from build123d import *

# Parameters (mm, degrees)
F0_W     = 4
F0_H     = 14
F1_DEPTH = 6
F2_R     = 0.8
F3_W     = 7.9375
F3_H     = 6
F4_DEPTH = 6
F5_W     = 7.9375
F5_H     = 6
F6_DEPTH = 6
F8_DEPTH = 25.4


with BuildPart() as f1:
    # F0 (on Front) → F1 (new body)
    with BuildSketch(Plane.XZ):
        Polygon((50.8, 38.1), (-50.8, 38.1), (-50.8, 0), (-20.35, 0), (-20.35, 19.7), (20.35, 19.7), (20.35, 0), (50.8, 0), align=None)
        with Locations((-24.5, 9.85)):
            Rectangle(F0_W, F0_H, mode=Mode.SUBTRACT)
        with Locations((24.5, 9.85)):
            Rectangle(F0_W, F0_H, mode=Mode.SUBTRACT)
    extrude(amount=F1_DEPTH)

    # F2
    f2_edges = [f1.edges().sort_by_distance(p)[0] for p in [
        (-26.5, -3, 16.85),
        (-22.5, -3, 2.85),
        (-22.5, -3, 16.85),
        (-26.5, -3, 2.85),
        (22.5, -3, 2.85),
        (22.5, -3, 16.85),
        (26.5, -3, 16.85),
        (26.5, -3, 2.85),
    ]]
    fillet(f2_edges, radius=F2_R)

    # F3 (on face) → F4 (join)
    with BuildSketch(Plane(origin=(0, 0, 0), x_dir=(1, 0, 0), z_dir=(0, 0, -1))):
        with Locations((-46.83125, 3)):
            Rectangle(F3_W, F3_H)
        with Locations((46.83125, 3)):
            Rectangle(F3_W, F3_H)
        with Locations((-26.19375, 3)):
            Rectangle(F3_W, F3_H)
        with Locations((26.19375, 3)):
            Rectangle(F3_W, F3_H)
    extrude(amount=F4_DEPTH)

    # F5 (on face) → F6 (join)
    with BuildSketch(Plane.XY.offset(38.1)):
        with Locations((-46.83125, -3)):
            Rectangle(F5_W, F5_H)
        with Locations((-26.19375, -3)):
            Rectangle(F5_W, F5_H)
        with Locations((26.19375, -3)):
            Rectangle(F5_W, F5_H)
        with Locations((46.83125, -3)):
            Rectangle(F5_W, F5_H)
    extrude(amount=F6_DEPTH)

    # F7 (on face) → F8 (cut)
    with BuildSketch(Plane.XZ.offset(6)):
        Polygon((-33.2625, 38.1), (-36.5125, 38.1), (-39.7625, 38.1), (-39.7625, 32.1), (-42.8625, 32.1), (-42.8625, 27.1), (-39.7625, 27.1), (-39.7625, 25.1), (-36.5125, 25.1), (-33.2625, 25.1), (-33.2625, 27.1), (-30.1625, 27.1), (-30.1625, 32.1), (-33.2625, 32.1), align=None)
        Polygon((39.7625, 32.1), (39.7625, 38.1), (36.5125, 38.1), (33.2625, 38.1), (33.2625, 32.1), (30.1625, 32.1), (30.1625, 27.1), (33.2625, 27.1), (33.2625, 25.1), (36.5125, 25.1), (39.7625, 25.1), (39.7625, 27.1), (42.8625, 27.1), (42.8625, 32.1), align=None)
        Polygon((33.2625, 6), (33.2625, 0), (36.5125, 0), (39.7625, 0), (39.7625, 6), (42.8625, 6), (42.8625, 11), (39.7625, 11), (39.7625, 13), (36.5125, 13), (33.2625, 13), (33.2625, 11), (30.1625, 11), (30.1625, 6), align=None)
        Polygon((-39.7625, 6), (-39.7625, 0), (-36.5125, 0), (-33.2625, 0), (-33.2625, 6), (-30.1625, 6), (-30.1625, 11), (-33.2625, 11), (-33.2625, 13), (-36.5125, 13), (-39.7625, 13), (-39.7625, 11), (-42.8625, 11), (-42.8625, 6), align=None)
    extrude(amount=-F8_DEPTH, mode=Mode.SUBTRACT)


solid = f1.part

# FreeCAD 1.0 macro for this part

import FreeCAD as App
import Part
import Sketcher


def edges_at(feature, points):
    """Names of the edges that pass closest to the given points."""
    edges = feature.Shape.Edges
    near = lambda p: min(range(len(edges)), key=lambda i: edges[i].distToShape(Part.Vertex(*p))[0])
    return sorted({f"Edge{near(p) + 1}" for p in points})


def add_polygon(sketch, points):
    """Adds a closed chain of lines whose ends are joined by coincident constraints."""
    first, n = sketch.GeometryCount, len(points)
    for a, b in zip(points, points[1:] + points[:1]):
        sketch.addGeometry(Part.LineSegment(App.Vector(*a, 0), App.Vector(*b, 0)), False)
    for i in range(n):
        sketch.addConstraint(Sketcher.Constraint("Coincident", first + i, 2, first + (i + 1) % n, 1))

doc = App.newDocument("Part")
body = doc.addObject("PartDesign::Body", "Body")

sketch1 = body.newObject("Sketcher::SketchObject", "Sketch")
sketch1.AttachmentSupport = (doc.getObject("XZ_Plane"), [""])
sketch1.MapMode = "FlatFace"
add_polygon(sketch1, [(50.8, 38.1), (-50.8, 38.1), (-50.8, 0), (-20.4, 0), (-20.4, 19.7), (20.4, 19.7), (20.4, 0), (50.8, 0)])
add_polygon(sketch1, [(-22.5, 2.9), (-26.5, 2.9), (-26.5, 16.9), (-22.5, 16.9)])
add_polygon(sketch1, [(26.5, 2.9), (22.5, 2.9), (22.5, 16.9), (26.5, 16.9)])
sketch1.addConstraint(Sketcher.Constraint("Horizontal", 0))
sketch1.addConstraint(Sketcher.Constraint("Vertical", 1))
sketch1.addConstraint(Sketcher.Constraint("Horizontal", 2))
sketch1.addConstraint(Sketcher.Constraint("Vertical", 3))
sketch1.addConstraint(Sketcher.Constraint("Horizontal", 4))
sketch1.addConstraint(Sketcher.Constraint("Vertical", 5))
sketch1.addConstraint(Sketcher.Constraint("Horizontal", 6))
sketch1.addConstraint(Sketcher.Constraint("Vertical", 7))
sketch1.addConstraint(Sketcher.Constraint("Horizontal", 8))
sketch1.addConstraint(Sketcher.Constraint("Vertical", 9))
sketch1.addConstraint(Sketcher.Constraint("Horizontal", 10))
sketch1.addConstraint(Sketcher.Constraint("Vertical", 11))
sketch1.addConstraint(Sketcher.Constraint("Horizontal", 12))
sketch1.addConstraint(Sketcher.Constraint("Vertical", 13))
sketch1.addConstraint(Sketcher.Constraint("Horizontal", 14))
sketch1.addConstraint(Sketcher.Constraint("Vertical", 15))
sketch1.addConstraint(Sketcher.Constraint("Symmetric", 2, 2, 5, 2, -1, 1))
sketch1.addConstraint(Sketcher.Constraint("Symmetric", 1, 2, 6, 2, -2))
sketch1.addConstraint(Sketcher.Constraint("Symmetric", 11, 2, 12, 2, -2))
sketch1.addConstraint(Sketcher.Constraint("Symmetric", 9, 2, 14, 2, -2))
sketch1.addConstraint(Sketcher.Constraint("DistanceX", 8, 2, 8, 1, 4.0))
sketch1.addConstraint(Sketcher.Constraint("DistanceY", 9, 1, 9, 2, 14.0))
sketch1.addConstraint(Sketcher.Constraint("DistanceX", 0, 2, 0, 1, 101.6))
sketch1.addConstraint(Sketcher.Constraint("DistanceX", 4, 1, 4, 2, 40.7))
sketch1.addConstraint(Sketcher.Constraint("DistanceY", 1, 2, 1, 1, 38.1))
sketch1.addConstraint(Sketcher.Constraint("DistanceY", 3, 1, 3, 2, 19.7))
sketch1.addConstraint(Sketcher.Constraint("DistanceX", 11, 2, 12, 2, 45.0))
sketch1.addConstraint(Sketcher.Constraint("DistanceY", -1, 1, 8, 2, 2.85))
pad1 = body.newObject("PartDesign::Pad", "Pad")
pad1.Profile = sketch1
pad1.Length = 6
doc.recompute()

fillet = body.newObject("PartDesign::Fillet", "Fillet")
fillet.Base = (pad1, edges_at(pad1, [
    (-26.5, -3, 16.85),
    (-22.5, -3, 2.85),
    (-22.5, -3, 16.85),
    (-26.5, -3, 2.85),
    (22.5, -3, 2.85),
    (22.5, -3, 16.85),
    (26.5, -3, 16.85),
    (26.5, -3, 2.85),
]))
fillet.Radius = 0.8

sketch2 = body.newObject("Sketcher::SketchObject", "Sketch001")
sketch2.AttachmentSupport = (doc.getObject("XY_Plane"), [""])
sketch2.MapMode = "FlatFace"
add_polygon(sketch2, [(-51, -6), (-51, 0), (-43, 0), (-43, -6)])
add_polygon(sketch2, [(43, -6), (43, 0), (51, 0), (51, -6)])
add_polygon(sketch2, [(-30, -6), (-30, 0), (-22, 0), (-22, -6)])
add_polygon(sketch2, [(22, -6), (22, 0), (30, 0), (30, -6)])
sketch2.addConstraint(Sketcher.Constraint("Vertical", 0))
sketch2.addConstraint(Sketcher.Constraint("Horizontal", 1))
sketch2.addConstraint(Sketcher.Constraint("Vertical", 2))
sketch2.addConstraint(Sketcher.Constraint("Horizontal", 3))
sketch2.addConstraint(Sketcher.Constraint("Vertical", 4))
sketch2.addConstraint(Sketcher.Constraint("Horizontal", 5))
sketch2.addConstraint(Sketcher.Constraint("Vertical", 6))
sketch2.addConstraint(Sketcher.Constraint("Horizontal", 7))
sketch2.addConstraint(Sketcher.Constraint("Vertical", 8))
sketch2.addConstraint(Sketcher.Constraint("Horizontal", 9))
sketch2.addConstraint(Sketcher.Constraint("Vertical", 10))
sketch2.addConstraint(Sketcher.Constraint("Horizontal", 11))
sketch2.addConstraint(Sketcher.Constraint("Vertical", 12))
sketch2.addConstraint(Sketcher.Constraint("Horizontal", 13))
sketch2.addConstraint(Sketcher.Constraint("Vertical", 14))
sketch2.addConstraint(Sketcher.Constraint("Horizontal", 15))
sketch2.addConstraint(Sketcher.Constraint("Symmetric", 1, 2, 4, 2, -1, 1))
sketch2.addConstraint(Sketcher.Constraint("Symmetric", 9, 2, 12, 2, -1, 1))
sketch2.addConstraint(Sketcher.Constraint("Symmetric", 0, 2, 5, 2, -2))
sketch2.addConstraint(Sketcher.Constraint("Symmetric", 8, 2, 13, 2, -2))
sketch2.addConstraint(Sketcher.Constraint("Horizontal", 3, 2, 6, 2))
sketch2.addConstraint(Sketcher.Constraint("Horizontal", 7, 2, 10, 2))
sketch2.addConstraint(Sketcher.Constraint("Horizontal", 11, 2, 14, 2))
sketch2.addConstraint(Sketcher.Constraint("Equal", 7, 9))
sketch2.addConstraint(Sketcher.Constraint("DistanceY", 0, 1, 0, 2, 6.0))
sketch2.addConstraint(Sketcher.Constraint("DistanceX", 0, 2, -1, 1, 50.8))
sketch2.addConstraint(Sketcher.Constraint("DistanceX", 1, 2, 8, 2, 12.7))
sketch2.addConstraint(Sketcher.Constraint("DistanceX", 9, 2, 12, 2, 44.45))
pad2 = body.newObject("PartDesign::Pad", "Pad001")
pad2.Profile = sketch2
pad2.Length = 6
pad2.Reversed = True

sketch3 = body.newObject("Sketcher::SketchObject", "Sketch002")
sketch3.AttachmentSupport = (doc.getObject("XY_Plane"), [""])
sketch3.MapMode = "FlatFace"
sketch3.AttachmentOffset = App.Placement(App.Vector(0, 0, 38.1), App.Rotation())
add_polygon(sketch3, [(-51, 0), (-51, -6), (-43, -6), (-43, 0)])
add_polygon(sketch3, [(-30, 0), (-30, -6), (-22, -6), (-22, 0)])
add_polygon(sketch3, [(22, 0), (22, -6), (30, -6), (30, 0)])
add_polygon(sketch3, [(43, 0), (43, -6), (51, -6), (51, 0)])
sketch3.addConstraint(Sketcher.Constraint("Vertical", 0))
sketch3.addConstraint(Sketcher.Constraint("Horizontal", 1))
sketch3.addConstraint(Sketcher.Constraint("Vertical", 2))
sketch3.addConstraint(Sketcher.Constraint("Horizontal", 3))
sketch3.addConstraint(Sketcher.Constraint("Vertical", 4))
sketch3.addConstraint(Sketcher.Constraint("Horizontal", 5))
sketch3.addConstraint(Sketcher.Constraint("Vertical", 6))
sketch3.addConstraint(Sketcher.Constraint("Horizontal", 7))
sketch3.addConstraint(Sketcher.Constraint("Vertical", 8))
sketch3.addConstraint(Sketcher.Constraint("Horizontal", 9))
sketch3.addConstraint(Sketcher.Constraint("Vertical", 10))
sketch3.addConstraint(Sketcher.Constraint("Horizontal", 11))
sketch3.addConstraint(Sketcher.Constraint("Vertical", 12))
sketch3.addConstraint(Sketcher.Constraint("Horizontal", 13))
sketch3.addConstraint(Sketcher.Constraint("Vertical", 14))
sketch3.addConstraint(Sketcher.Constraint("Horizontal", 15))
sketch3.addConstraint(Sketcher.Constraint("Symmetric", 7, 2, 10, 2, -1, 1))
sketch3.addConstraint(Sketcher.Constraint("Symmetric", 3, 2, 14, 2, -1, 1))
sketch3.addConstraint(Sketcher.Constraint("Symmetric", 5, 2, 8, 2, -2))
sketch3.addConstraint(Sketcher.Constraint("Symmetric", 1, 2, 12, 2, -2))
sketch3.addConstraint(Sketcher.Constraint("PointOnObject", 2, 2, -1))
sketch3.addConstraint(Sketcher.Constraint("PointOnObject", 6, 2, -1))
sketch3.addConstraint(Sketcher.Constraint("Horizontal", 1, 2, 4, 2))
sketch3.addConstraint(Sketcher.Constraint("Equal", 3, 5))
sketch3.addConstraint(Sketcher.Constraint("DistanceY", 0, 2, 0, 1, 6.0))
sketch3.addConstraint(Sketcher.Constraint("DistanceX", 0, 2, -1, 1, 50.8))
sketch3.addConstraint(Sketcher.Constraint("DistanceX", 1, 2, 4, 2, 12.7))
sketch3.addConstraint(Sketcher.Constraint("DistanceX", 5, 2, 8, 2, 44.45))
pad3 = body.newObject("PartDesign::Pad", "Pad002")
pad3.Profile = sketch3
pad3.Length = 6

sketch4 = body.newObject("Sketcher::SketchObject", "Sketch003")
sketch4.AttachmentSupport = (doc.getObject("XZ_Plane"), [""])
sketch4.MapMode = "FlatFace"
sketch4.AttachmentOffset = App.Placement(App.Vector(0, 0, 6), App.Rotation())
add_polygon(sketch4, [(-33.3, 38.1), (-39.8, 38.1), (-39.8, 32.1), (-42.9, 32.1), (-42.9, 27.1), (-39.8, 27.1), (-39.8, 25.1), (-33.3, 25.1), (-33.3, 27.1), (-30.2, 27.1), (-30.2, 32.1), (-33.3, 32.1)])
add_polygon(sketch4, [(39.8, 32.1), (39.8, 38.1), (33.3, 38.1), (33.3, 32.1), (30.2, 32.1), (30.2, 27.1), (33.3, 27.1), (33.3, 25.1), (39.8, 25.1), (39.8, 27.1), (42.9, 27.1), (42.9, 32.1)])
add_polygon(sketch4, [(33.3, 6), (33.3, 0), (39.8, 0), (39.8, 6), (42.9, 6), (42.9, 11), (39.8, 11), (39.8, 13), (33.3, 13), (33.3, 11), (30.2, 11), (30.2, 6)])
add_polygon(sketch4, [(-39.8, 6), (-39.8, 0), (-33.3, 0), (-33.3, 6), (-30.2, 6), (-30.2, 11), (-33.3, 11), (-33.3, 13), (-39.8, 13), (-39.8, 11), (-42.9, 11), (-42.9, 6)])
sketch4.addConstraint(Sketcher.Constraint("Horizontal", 0))
sketch4.addConstraint(Sketcher.Constraint("Vertical", 1))
sketch4.addConstraint(Sketcher.Constraint("Horizontal", 2))
sketch4.addConstraint(Sketcher.Constraint("Vertical", 3))
sketch4.addConstraint(Sketcher.Constraint("Horizontal", 4))
sketch4.addConstraint(Sketcher.Constraint("Vertical", 5))
sketch4.addConstraint(Sketcher.Constraint("Horizontal", 6))
sketch4.addConstraint(Sketcher.Constraint("Vertical", 7))
sketch4.addConstraint(Sketcher.Constraint("Horizontal", 8))
sketch4.addConstraint(Sketcher.Constraint("Vertical", 9))
sketch4.addConstraint(Sketcher.Constraint("Horizontal", 10))
sketch4.addConstraint(Sketcher.Constraint("Vertical", 11))
sketch4.addConstraint(Sketcher.Constraint("Vertical", 12))
sketch4.addConstraint(Sketcher.Constraint("Horizontal", 13))
sketch4.addConstraint(Sketcher.Constraint("Vertical", 14))
sketch4.addConstraint(Sketcher.Constraint("Horizontal", 15))
sketch4.addConstraint(Sketcher.Constraint("Vertical", 16))
sketch4.addConstraint(Sketcher.Constraint("Horizontal", 17))
sketch4.addConstraint(Sketcher.Constraint("Vertical", 18))
sketch4.addConstraint(Sketcher.Constraint("Horizontal", 19))
sketch4.addConstraint(Sketcher.Constraint("Vertical", 20))
sketch4.addConstraint(Sketcher.Constraint("Horizontal", 21))
sketch4.addConstraint(Sketcher.Constraint("Vertical", 22))
sketch4.addConstraint(Sketcher.Constraint("Horizontal", 23))
sketch4.addConstraint(Sketcher.Constraint("Vertical", 24))
sketch4.addConstraint(Sketcher.Constraint("Horizontal", 25))
sketch4.addConstraint(Sketcher.Constraint("Vertical", 26))
sketch4.addConstraint(Sketcher.Constraint("Horizontal", 27))
sketch4.addConstraint(Sketcher.Constraint("Vertical", 28))
sketch4.addConstraint(Sketcher.Constraint("Horizontal", 29))
sketch4.addConstraint(Sketcher.Constraint("Vertical", 30))
sketch4.addConstraint(Sketcher.Constraint("Horizontal", 31))
sketch4.addConstraint(Sketcher.Constraint("Vertical", 32))
sketch4.addConstraint(Sketcher.Constraint("Horizontal", 33))
sketch4.addConstraint(Sketcher.Constraint("Vertical", 34))
sketch4.addConstraint(Sketcher.Constraint("Horizontal", 35))
sketch4.addConstraint(Sketcher.Constraint("Vertical", 36))
sketch4.addConstraint(Sketcher.Constraint("Horizontal", 37))
sketch4.addConstraint(Sketcher.Constraint("Vertical", 38))
sketch4.addConstraint(Sketcher.Constraint("Horizontal", 39))
sketch4.addConstraint(Sketcher.Constraint("Vertical", 40))
sketch4.addConstraint(Sketcher.Constraint("Horizontal", 41))
sketch4.addConstraint(Sketcher.Constraint("Vertical", 42))
sketch4.addConstraint(Sketcher.Constraint("Horizontal", 43))
sketch4.addConstraint(Sketcher.Constraint("Vertical", 44))
sketch4.addConstraint(Sketcher.Constraint("Horizontal", 45))
sketch4.addConstraint(Sketcher.Constraint("Vertical", 46))
sketch4.addConstraint(Sketcher.Constraint("Horizontal", 47))
sketch4.addConstraint(Sketcher.Constraint("Symmetric", 25, 2, 36, 2, -1, 1))
sketch4.addConstraint(Sketcher.Constraint("Symmetric", 0, 2, 12, 2, -2))
sketch4.addConstraint(Sketcher.Constraint("Symmetric", 10, 2, 14, 2, -2))
sketch4.addConstraint(Sketcher.Constraint("Symmetric", 8, 2, 16, 2, -2))
sketch4.addConstraint(Sketcher.Constraint("Symmetric", 6, 2, 18, 2, -2))
sketch4.addConstraint(Sketcher.Constraint("Symmetric", 4, 2, 20, 2, -2))
sketch4.addConstraint(Sketcher.Constraint("Symmetric", 2, 2, 22, 2, -2))
sketch4.addConstraint(Sketcher.Constraint("Symmetric", 24, 2, 37, 2, -2))
sketch4.addConstraint(Sketcher.Constraint("Symmetric", 34, 2, 39, 2, -2))
sketch4.addConstraint(Sketcher.Constraint("Symmetric", 32, 2, 41, 2, -2))
sketch4.addConstraint(Sketcher.Constraint("Symmetric", 30, 2, 43, 2, -2))
sketch4.addConstraint(Sketcher.Constraint("Symmetric", 28, 2, 45, 2, -2))
sketch4.addConstraint(Sketcher.Constraint("Horizontal", 4, 2, 7, 2))
sketch4.addConstraint(Sketcher.Constraint("Horizontal", 2, 2, 9, 2))
sketch4.addConstraint(Sketcher.Constraint("Horizontal", 29, 2, 32, 2))
sketch4.addConstraint(Sketcher.Constraint("Horizontal", 27, 2, 34, 2))
sketch4.addConstraint(Sketcher.Constraint("Horizontal", 39, 2, 46, 2))
sketch4.addConstraint(Sketcher.Constraint("Vertical", 1, 2, 4, 2))
sketch4.addConstraint(Sketcher.Constraint("Vertical", 7, 2, 10, 2))
sketch4.addConstraint(Sketcher.Constraint("Vertical", 18, 2, 24, 2))
sketch4.addConstraint(Sketcher.Constraint("Vertical", 23, 2, 25, 2))
sketch4.addConstraint(Sketcher.Constraint("Vertical", 22, 2, 27, 2))
sketch4.addConstraint(Sketcher.Constraint("Vertical", 26, 2, 29, 2))
sketch4.addConstraint(Sketcher.Constraint("Vertical", 24, 2, 31, 2))
sketch4.addConstraint(Sketcher.Constraint("Vertical", 16, 2, 33, 2))
sketch4.addConstraint(Sketcher.Constraint("Equal", 4, 8))
sketch4.addConstraint(Sketcher.Constraint("Equal", 14, 24))
sketch4.addConstraint(Sketcher.Constraint("Equal", 22, 28))
sketch4.addConstraint(Sketcher.Constraint("Equal", 20, 30))
sketch4.addConstraint(Sketcher.Constraint("DistanceY", 1, 2, 1, 1, 6.0))
sketch4.addConstraint(Sketcher.Constraint("DistanceY", 3, 2, 3, 1, 5.0))
sketch4.addConstraint(Sketcher.Constraint("DistanceY", 5, 2, 5, 1, 2.0))
sketch4.addConstraint(Sketcher.Constraint("DistanceX", 0, 2, 0, 1, 6.5))
sketch4.addConstraint(Sketcher.Constraint("DistanceX", 2, 2, 2, 1, 3.1))
sketch4.addConstraint(Sketcher.Constraint("DistanceY", -1, 1, 0, 2, 38.1))
sketch4.addConstraint(Sketcher.Constraint("DistanceX", 9, 2, 12, 2, 69.925))
pocket1 = body.newObject("PartDesign::Pocket", "Pocket")
pocket1.Profile = sketch4
pocket1.Length = 25.4

doc.recompute()
